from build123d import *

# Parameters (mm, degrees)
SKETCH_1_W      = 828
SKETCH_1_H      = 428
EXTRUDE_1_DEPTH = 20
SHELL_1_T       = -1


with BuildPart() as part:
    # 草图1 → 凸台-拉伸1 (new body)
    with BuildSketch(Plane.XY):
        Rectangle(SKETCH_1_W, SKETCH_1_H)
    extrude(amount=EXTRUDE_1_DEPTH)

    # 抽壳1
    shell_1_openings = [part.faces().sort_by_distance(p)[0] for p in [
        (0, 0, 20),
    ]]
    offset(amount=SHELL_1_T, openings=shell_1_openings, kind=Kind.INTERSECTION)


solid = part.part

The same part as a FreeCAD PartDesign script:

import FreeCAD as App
import Part
import Sketcher


def faces_at(feature, points):
    """Names of the faces that lie closest to the given points."""
    faces = feature.Shape.Faces
    near = lambda p: min(range(len(faces)), key=lambda i: faces[i].distToShape(Part.Vertex(*p))[0])
    return sorted({f"Face{near(p) + 1}" for p in points})


def add_polygon(sketch, points):
    """Adds a closed chain of lines whose ends are joined by coincident constraints."""
    first, n = sketch.GeometryCount, len(points)
    for a, b in zip(points, points[1:] + points[:1]):
        sketch.addGeometry(Part.LineSegment(App.Vector(*a, 0), App.Vector(*b, 0)), False)
    for i in range(n):
        sketch.addConstraint(Sketcher.Constraint("Coincident", first + i, 2, first + (i + 1) % n, 1))

doc = App.newDocument("Part")
body = doc.addObject("PartDesign::Body", "Body")

sketch1 = doc.addObject("Sketcher::SketchObject", "Sketch")
body.addObject(sketch1)
sketch1.AttachmentSupport = (doc.XY_Plane, [""])
sketch1.MapMode = "FlatFace"
add_polygon(sketch1, [(-414, 214), (-414, -214), (414, -214), (414, 214)])
sketch1.addConstraint([
    Sketcher.Constraint("Vertical", 0),
    Sketcher.Constraint("Horizontal", 1),
    Sketcher.Constraint("Vertical", 2),
    Sketcher.Constraint("Horizontal", 3),
    Sketcher.Constraint("Symmetric", 0, 2, 2, 2, -1, 1),
    Sketcher.Constraint("DistanceX", 1, 1, 1, 2, 828.0),
    Sketcher.Constraint("DistanceY", 0, 2, 0, 1, 428.0),
])
pad1 = doc.addObject("PartDesign::Pad", "Pad")
body.addObject(pad1)
pad1.Profile = sketch1
pad1.Length = 20
doc.recompute()

thickness = doc.addObject("PartDesign::Thickness", "Thickness")
body.addObject(thickness)
thickness.Base = (pad1, faces_at(pad1, [(0, 0, 20)]))
thickness.Value = 1
thickness.Reversed = True
thickness.Join = "Intersection"

doc.recompute()
